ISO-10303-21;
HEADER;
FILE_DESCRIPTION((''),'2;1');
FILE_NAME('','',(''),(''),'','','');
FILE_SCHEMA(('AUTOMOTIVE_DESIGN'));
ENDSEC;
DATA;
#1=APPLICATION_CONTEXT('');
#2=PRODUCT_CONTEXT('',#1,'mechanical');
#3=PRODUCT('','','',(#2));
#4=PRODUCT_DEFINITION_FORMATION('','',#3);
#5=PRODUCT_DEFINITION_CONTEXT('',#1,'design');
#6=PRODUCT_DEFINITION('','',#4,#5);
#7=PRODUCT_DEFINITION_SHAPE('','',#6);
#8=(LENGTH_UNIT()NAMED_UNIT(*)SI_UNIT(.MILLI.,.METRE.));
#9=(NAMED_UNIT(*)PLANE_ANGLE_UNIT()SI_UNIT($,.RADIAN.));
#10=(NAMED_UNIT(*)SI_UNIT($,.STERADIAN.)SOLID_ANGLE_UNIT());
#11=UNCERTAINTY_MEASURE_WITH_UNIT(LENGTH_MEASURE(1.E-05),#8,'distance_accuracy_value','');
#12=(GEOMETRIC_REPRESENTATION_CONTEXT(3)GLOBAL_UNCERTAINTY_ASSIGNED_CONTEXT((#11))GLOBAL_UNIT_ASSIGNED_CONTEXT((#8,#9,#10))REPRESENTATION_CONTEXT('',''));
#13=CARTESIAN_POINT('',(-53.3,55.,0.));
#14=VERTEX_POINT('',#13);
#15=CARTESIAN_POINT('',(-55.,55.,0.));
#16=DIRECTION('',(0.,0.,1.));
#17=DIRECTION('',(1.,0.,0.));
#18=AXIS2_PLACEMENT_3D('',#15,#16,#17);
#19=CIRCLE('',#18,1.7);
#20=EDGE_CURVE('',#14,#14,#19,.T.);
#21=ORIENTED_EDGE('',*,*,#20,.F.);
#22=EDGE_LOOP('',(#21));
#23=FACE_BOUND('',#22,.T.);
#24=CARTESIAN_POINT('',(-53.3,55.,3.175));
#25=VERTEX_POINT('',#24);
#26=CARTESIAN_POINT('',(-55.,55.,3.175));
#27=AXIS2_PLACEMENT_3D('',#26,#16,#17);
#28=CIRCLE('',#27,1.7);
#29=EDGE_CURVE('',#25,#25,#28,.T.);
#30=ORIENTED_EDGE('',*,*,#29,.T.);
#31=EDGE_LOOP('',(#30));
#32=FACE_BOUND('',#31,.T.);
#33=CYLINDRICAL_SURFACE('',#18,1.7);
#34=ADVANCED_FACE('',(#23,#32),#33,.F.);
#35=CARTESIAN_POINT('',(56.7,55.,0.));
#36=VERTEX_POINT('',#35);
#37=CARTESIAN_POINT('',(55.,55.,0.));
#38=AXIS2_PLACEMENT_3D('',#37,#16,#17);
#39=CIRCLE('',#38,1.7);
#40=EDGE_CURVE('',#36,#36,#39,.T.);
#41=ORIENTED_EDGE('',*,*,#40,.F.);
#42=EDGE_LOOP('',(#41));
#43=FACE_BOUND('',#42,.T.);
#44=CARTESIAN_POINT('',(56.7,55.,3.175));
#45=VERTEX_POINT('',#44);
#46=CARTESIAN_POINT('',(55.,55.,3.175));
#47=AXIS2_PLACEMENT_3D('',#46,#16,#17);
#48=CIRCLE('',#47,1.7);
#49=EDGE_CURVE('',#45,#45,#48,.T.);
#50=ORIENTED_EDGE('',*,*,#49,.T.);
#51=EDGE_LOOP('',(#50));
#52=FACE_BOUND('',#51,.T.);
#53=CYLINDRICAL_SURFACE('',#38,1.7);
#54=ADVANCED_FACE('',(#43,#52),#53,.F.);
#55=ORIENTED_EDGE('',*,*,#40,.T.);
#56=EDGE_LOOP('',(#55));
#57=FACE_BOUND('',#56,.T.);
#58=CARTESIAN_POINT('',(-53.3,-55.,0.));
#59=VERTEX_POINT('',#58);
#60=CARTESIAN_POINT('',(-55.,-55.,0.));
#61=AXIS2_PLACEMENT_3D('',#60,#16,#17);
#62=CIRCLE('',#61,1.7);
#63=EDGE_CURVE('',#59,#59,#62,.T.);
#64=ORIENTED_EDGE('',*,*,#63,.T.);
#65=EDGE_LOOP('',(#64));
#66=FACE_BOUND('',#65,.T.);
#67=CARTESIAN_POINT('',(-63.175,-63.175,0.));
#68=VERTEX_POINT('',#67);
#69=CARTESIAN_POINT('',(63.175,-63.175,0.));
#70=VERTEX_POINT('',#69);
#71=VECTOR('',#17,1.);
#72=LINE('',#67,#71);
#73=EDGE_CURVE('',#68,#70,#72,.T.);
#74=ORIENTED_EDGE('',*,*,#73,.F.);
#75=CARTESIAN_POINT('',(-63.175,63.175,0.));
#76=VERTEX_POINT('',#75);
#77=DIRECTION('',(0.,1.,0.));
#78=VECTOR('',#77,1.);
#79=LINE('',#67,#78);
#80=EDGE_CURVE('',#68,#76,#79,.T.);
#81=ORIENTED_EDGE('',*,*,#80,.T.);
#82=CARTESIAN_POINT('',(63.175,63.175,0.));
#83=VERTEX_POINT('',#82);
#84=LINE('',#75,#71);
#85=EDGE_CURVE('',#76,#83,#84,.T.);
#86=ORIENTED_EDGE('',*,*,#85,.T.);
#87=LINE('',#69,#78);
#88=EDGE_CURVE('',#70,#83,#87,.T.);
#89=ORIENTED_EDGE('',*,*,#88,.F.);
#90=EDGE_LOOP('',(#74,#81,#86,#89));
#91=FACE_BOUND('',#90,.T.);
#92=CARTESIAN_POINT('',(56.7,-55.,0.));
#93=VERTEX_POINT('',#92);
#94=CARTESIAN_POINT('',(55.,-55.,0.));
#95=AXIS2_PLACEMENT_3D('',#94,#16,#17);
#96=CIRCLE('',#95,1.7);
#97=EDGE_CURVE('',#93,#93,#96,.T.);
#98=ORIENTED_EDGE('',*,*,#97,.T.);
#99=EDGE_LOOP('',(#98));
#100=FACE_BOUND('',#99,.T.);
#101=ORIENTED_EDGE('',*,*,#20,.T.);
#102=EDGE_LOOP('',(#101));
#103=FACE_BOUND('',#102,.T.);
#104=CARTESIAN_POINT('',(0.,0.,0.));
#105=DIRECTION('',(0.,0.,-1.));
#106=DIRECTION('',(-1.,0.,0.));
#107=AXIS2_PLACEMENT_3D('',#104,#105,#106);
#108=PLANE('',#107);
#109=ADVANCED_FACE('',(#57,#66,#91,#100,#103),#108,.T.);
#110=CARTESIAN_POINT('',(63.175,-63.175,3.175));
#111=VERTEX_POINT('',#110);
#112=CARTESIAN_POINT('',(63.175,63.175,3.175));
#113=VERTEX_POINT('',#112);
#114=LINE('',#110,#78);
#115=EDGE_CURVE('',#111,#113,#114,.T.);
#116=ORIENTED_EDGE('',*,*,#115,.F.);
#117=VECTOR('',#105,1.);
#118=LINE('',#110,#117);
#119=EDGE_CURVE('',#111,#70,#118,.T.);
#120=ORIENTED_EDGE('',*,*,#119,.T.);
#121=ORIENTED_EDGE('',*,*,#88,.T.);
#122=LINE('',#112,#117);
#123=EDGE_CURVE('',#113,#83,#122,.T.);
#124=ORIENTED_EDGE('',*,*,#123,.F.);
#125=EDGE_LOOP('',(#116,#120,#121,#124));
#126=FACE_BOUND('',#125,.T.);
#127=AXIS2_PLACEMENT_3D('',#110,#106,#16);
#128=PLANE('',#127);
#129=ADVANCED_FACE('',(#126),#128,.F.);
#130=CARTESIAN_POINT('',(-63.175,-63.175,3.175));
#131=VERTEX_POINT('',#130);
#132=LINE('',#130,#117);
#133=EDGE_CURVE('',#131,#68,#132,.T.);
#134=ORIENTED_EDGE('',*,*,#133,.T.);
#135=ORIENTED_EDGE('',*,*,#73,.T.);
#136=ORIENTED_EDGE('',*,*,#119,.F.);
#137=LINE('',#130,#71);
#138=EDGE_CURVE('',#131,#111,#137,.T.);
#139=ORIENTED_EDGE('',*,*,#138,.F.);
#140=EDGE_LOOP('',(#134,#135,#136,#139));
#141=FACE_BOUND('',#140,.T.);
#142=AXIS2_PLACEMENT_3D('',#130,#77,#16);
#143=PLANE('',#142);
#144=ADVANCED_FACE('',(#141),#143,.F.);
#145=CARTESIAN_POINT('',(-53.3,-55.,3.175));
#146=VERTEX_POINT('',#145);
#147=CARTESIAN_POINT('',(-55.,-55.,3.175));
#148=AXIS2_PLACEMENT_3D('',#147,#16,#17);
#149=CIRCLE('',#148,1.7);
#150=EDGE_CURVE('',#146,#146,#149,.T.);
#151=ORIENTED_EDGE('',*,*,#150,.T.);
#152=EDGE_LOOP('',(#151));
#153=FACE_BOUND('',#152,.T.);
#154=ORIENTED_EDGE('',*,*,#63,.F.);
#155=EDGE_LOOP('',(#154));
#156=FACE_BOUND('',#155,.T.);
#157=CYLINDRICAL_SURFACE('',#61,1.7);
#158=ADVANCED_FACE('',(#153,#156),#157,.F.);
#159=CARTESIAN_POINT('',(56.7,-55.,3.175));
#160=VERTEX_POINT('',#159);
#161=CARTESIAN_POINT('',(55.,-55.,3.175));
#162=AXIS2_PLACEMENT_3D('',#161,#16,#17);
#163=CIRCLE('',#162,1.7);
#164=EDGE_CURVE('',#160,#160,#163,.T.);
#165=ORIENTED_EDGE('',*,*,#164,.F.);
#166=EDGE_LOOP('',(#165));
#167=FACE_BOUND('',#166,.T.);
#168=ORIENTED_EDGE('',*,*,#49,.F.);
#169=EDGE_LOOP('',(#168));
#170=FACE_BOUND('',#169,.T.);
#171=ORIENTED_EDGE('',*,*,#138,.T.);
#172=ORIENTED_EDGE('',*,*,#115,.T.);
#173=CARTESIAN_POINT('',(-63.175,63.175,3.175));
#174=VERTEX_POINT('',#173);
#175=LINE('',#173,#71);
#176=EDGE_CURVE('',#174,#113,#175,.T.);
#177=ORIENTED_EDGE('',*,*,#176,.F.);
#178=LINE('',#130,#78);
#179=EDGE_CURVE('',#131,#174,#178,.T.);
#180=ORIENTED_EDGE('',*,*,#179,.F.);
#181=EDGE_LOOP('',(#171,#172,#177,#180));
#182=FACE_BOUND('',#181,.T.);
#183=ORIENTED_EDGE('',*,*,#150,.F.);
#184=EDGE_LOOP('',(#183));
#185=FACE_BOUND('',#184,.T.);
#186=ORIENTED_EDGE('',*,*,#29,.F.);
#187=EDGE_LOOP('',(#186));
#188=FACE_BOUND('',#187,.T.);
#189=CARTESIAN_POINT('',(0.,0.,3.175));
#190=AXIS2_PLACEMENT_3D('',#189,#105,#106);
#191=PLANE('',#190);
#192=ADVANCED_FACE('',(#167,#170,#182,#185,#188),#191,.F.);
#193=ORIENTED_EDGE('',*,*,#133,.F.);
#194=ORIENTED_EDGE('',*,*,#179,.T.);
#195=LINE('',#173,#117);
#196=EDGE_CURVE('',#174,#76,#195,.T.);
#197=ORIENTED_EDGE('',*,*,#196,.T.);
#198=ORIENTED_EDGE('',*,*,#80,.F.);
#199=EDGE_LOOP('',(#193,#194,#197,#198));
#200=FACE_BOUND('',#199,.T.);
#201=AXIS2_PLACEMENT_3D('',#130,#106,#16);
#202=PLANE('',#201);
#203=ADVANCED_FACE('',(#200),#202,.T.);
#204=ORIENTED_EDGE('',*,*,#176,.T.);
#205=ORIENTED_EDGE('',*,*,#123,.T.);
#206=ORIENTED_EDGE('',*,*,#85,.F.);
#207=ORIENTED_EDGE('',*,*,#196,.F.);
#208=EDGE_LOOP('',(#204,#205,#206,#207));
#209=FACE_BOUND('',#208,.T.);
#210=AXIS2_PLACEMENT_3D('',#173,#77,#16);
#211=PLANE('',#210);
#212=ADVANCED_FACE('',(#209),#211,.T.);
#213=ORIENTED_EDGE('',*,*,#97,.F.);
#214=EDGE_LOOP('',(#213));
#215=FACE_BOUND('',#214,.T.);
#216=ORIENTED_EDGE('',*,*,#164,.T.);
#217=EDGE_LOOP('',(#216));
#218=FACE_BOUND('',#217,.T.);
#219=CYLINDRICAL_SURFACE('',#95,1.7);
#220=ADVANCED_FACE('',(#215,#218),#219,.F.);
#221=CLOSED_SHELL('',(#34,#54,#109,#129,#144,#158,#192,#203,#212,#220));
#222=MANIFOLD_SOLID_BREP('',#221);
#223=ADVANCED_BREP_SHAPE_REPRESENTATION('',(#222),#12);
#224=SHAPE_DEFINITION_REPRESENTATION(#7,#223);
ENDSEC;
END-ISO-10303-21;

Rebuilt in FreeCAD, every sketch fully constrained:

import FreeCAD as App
import Part
import Sketcher

V = App.Vector


def add_polygon(sketch, points):
    """Adds a closed chain of lines whose ends are joined by coincident constraints."""
    first, n = sketch.GeometryCount, len(points)
    for a, b in zip(points, points[1:] + points[:1]):
        sketch.addGeometry(Part.LineSegment(App.Vector(*a, 0), App.Vector(*b, 0)), False)
    for i in range(n):
        sketch.addConstraint(Sketcher.Constraint("Coincident", first + i, 2, first + (i + 1) % n, 1))

doc = App.newDocument("Part")
params = doc.addObject("Spreadsheet::Sheet", "Params")
for row, (alias, value) in enumerate([
    ("sketch1_width", "126.35 mm"),
    ("pad1_length", "3.175 mm"),
    ("sketch2_diameter", "3.4 mm"),
    ("pocket1_length", "3.175 mm"),
], start=1):
    params.set(f"A{row}", alias)
    params.set(f"B{row}", "=" + value)
    params.setAlias(f"B{row}", alias)

body = doc.addObject("PartDesign::Body", "Body")

# Sketch on XY plane
sketch1 = body.newObject("Sketcher::SketchObject", "Sketch")
sketch1.AttachmentSupport = (doc.getObject("XY_Plane"), [""])
sketch1.MapMode = "FlatFace"
add_polygon(sketch1, [(-63, 63), (-63, -63), (63, -63), (63, 63)])  # lines 0-3
sketch1.addConstraint(Sketcher.Constraint("Vertical", 0))
sketch1.addConstraint(Sketcher.Constraint("Horizontal", 1))
sketch1.addConstraint(Sketcher.Constraint("Vertical", 2))
sketch1.addConstraint(Sketcher.Constraint("Horizontal", 3))
sketch1.addConstraint(Sketcher.Constraint("Symmetric", 0, 2, 2, 2, -1, 1))
sketch1.addConstraint(Sketcher.Constraint("Equal", 3, 0))
sketch1.addConstraint(Sketcher.Constraint("DistanceX", 1, 1, 1, 2, 126.35))
sketch1.setExpression("Constraints[10]", "Params.sketch1_width")
pad1 = body.newObject("PartDesign::Pad", "Pad")
pad1.Profile = sketch1
pad1.setExpression("Length", "Params.pad1_length")

# Sketch on XY plane
sketch2 = body.newObject("Sketcher::SketchObject", "Sketch001")
sketch2.AttachmentSupport = (doc.getObject("XY_Plane"), [""])
sketch2.MapMode = "FlatFace"
sketch2.AttachmentOffset = App.Placement(V(0, 0, 3.175), App.Rotation())
sketch2.addGeometry(Part.Circle(V(-55, 55, 0), V(0, 0, 1), 1.7), False)
sketch2.addGeometry(Part.Circle(V(-55, -55, 0), V(0, 0, 1), 1.7), False)
sketch2.addGeometry(Part.Circle(V(55, -55, 0), V(0, 0, 1), 1.7), False)
sketch2.addGeometry(Part.Circle(V(55, 55, 0), V(0, 0, 1), 1.7), False)
sketch2.addConstraint(Sketcher.Constraint("Equal", 0, 1))
sketch2.addConstraint(Sketcher.Constraint("Equal", 1, 2))
sketch2.addConstraint(Sketcher.Constraint("Equal", 2, 3))
sketch2.addConstraint(Sketcher.Constraint("Symmetric", 0, 3, 2, 3, -1, 1))
sketch2.addConstraint(Sketcher.Constraint("Symmetric", 1, 3, 3, 3, -1, 1))
sketch2.addConstraint(Sketcher.Constraint("Symmetric", 1, 3, 2, 3, -2))
sketch2.addConstraint(Sketcher.Constraint("Diameter", 0, 3.4))
sketch2.addConstraint(Sketcher.Constraint("DistanceX", 0, 3, -1, 1, 55.0))
sketch2.addConstraint(Sketcher.Constraint("DistanceY", -1, 1, 0, 3, 55.0))
sketch2.setExpression("Constraints[6]", "Params.sketch2_diameter")
pocket1 = body.newObject("PartDesign::Pocket", "Pocket")
pocket1.Profile = sketch2
pocket1.setExpression("Length", "Params.pocket1_length")

doc.recompute()
